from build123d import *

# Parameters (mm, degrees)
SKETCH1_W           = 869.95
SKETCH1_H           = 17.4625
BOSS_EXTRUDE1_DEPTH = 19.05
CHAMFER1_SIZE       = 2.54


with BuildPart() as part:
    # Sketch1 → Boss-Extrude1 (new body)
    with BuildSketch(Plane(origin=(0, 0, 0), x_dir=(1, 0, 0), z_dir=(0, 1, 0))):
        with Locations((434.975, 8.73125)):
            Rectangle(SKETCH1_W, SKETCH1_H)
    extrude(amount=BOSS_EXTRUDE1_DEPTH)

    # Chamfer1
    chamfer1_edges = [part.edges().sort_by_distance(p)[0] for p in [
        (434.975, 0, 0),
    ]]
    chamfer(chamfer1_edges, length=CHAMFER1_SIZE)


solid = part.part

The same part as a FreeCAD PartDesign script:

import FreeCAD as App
import Part
import Sketcher
Q = App.Units.Quantity


def edges_at(feature, points):
    """Names of the edges that pass closest to the given points."""
    edges = feature.Shape.Edges
    near = lambda p: min(range(len(edges)), key=lambda i: edges[i].distToShape(Part.Vertex(*p))[0])
    return sorted({f"Edge{near(p) + 1}" for p in points})

doc = App.newDocument("Part")
body = doc.addObject("PartDesign::Body", "Body")

sketch1 = body.newObject("Sketcher::SketchObject", "Sketch")
sketch1.AttachmentSupport = (doc.getObject("XZ_Plane"), [""])
sketch1.MapMode = "FlatFace"
sketch1.addGeometry(Part.LineSegment(App.Vector(0, -17.4625, 0), App.Vector(0, 0, 0)), False)
sketch1.addGeometry(Part.LineSegment(App.Vector(0, 0, 0), App.Vector(869.95, 0, 0)), False)
sketch1.addGeometry(Part.LineSegment(App.Vector(869.95, 0, 0), App.Vector(869.95, -17.4625, 0)), False)
sketch1.addGeometry(Part.LineSegment(App.Vector(869.95, -17.4625, 0), App.Vector(0, -17.4625, 0)), False)
sketch1.addConstraint(Sketcher.Constraint("Coincident", 0, 2, 1, 1))
sketch1.addConstraint(Sketcher.Constraint("Coincident", 1, 2, 2, 1))
sketch1.addConstraint(Sketcher.Constraint("Coincident", 2, 2, 3, 1))
sketch1.addConstraint(Sketcher.Constraint("Coincident", 3, 2, 0, 1))
sketch1.addConstraint(Sketcher.Constraint("Vertical", 0))
sketch1.addConstraint(Sketcher.Constraint("Horizontal", 1))
sketch1.addConstraint(Sketcher.Constraint("Vertical", 2))
sketch1.addConstraint(Sketcher.Constraint("Horizontal", 3))
sketch1.addConstraint(Sketcher.Constraint("Coincident", 0, 2, -1, 1))
sketch1.addConstraint(Sketcher.Constraint("DistanceX", 1, 1, 1, 2, Q("34.25 in")))
sketch1.addConstraint(Sketcher.Constraint("DistanceY", 0, 1, 0, 2, Q("0.6875 in")))
pad1 = body.newObject("PartDesign::Pad", "Pad")
pad1.Profile = sketch1
pad1.Length = Q("0.75 in")
pad1.Reversed = True
doc.recompute()

chamfer = body.newObject("PartDesign::Chamfer", "Chamfer")
chamfer.Base = (pad1, edges_at(pad1, [(434.975, 0, 0)]))
chamfer.Size = Q("0.1 in")

doc.recompute()
